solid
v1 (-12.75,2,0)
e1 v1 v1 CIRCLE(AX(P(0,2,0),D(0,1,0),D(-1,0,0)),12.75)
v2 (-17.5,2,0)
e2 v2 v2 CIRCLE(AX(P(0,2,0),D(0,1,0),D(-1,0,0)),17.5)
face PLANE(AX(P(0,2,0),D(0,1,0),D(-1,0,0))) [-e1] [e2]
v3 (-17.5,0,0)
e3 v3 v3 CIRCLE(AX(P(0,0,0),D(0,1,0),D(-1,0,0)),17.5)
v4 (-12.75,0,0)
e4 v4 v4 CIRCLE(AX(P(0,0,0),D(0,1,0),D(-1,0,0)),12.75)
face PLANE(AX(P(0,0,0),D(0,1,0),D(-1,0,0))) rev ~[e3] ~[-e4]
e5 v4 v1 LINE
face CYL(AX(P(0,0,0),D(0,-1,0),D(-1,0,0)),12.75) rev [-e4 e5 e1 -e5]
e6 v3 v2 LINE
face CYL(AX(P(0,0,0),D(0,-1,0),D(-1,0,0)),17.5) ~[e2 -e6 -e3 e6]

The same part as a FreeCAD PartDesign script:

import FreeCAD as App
import Part
import Sketcher
from FreeCAD import Vector

doc = App.newDocument("Part")
params = doc.addObject("Spreadsheet::Sheet", "Params")
for row, (alias, value) in enumerate([
    ("sketch1_diameter", "35 mm"),
    ("sketch1_diameter2", "25.5 mm"),
    ("pad1_length", "2 mm"),
], start=1):
    params.set(f"A{row}", alias)
    params.set(f"B{row}", "=" + value)
    params.setAlias(f"B{row}", alias)

body = doc.addObject("PartDesign::Body", "Body")

sketch1 = body.newObject("Sketcher::SketchObject", "Sketch")
sketch1.AttachmentSupport = (doc.getObject("XZ_Plane"), [""])
sketch1.MapMode = "FlatFace"
sketch1.addGeometry(Part.Circle(Vector(0, 0, 0), Vector(0, 0, 1), 17.5), False)
sketch1.addGeometry(Part.Circle(Vector(0, 0, 0), Vector(0, 0, 1), 12.75), False)
sketch1.addConstraint(Sketcher.Constraint("Coincident", 0, 3, -1, 1))
sketch1.addConstraint(Sketcher.Constraint("Coincident", 1, 3, -1, 1))
sketch1.addConstraint(Sketcher.Constraint("Diameter", 0, 35.0))
sketch1.addConstraint(Sketcher.Constraint("Diameter", 1, 25.5))
sketch1.setExpression("Constraints[2]", "Params.sketch1_diameter")
sketch1.setExpression("Constraints[3]", "Params.sketch1_diameter2")
pad1 = body.newObject("PartDesign::Pad", "Pad")
pad1.Profile = sketch1
pad1.setExpression("Length", "Params.pad1_length")
pad1.Reversed = True

doc.recompute()
